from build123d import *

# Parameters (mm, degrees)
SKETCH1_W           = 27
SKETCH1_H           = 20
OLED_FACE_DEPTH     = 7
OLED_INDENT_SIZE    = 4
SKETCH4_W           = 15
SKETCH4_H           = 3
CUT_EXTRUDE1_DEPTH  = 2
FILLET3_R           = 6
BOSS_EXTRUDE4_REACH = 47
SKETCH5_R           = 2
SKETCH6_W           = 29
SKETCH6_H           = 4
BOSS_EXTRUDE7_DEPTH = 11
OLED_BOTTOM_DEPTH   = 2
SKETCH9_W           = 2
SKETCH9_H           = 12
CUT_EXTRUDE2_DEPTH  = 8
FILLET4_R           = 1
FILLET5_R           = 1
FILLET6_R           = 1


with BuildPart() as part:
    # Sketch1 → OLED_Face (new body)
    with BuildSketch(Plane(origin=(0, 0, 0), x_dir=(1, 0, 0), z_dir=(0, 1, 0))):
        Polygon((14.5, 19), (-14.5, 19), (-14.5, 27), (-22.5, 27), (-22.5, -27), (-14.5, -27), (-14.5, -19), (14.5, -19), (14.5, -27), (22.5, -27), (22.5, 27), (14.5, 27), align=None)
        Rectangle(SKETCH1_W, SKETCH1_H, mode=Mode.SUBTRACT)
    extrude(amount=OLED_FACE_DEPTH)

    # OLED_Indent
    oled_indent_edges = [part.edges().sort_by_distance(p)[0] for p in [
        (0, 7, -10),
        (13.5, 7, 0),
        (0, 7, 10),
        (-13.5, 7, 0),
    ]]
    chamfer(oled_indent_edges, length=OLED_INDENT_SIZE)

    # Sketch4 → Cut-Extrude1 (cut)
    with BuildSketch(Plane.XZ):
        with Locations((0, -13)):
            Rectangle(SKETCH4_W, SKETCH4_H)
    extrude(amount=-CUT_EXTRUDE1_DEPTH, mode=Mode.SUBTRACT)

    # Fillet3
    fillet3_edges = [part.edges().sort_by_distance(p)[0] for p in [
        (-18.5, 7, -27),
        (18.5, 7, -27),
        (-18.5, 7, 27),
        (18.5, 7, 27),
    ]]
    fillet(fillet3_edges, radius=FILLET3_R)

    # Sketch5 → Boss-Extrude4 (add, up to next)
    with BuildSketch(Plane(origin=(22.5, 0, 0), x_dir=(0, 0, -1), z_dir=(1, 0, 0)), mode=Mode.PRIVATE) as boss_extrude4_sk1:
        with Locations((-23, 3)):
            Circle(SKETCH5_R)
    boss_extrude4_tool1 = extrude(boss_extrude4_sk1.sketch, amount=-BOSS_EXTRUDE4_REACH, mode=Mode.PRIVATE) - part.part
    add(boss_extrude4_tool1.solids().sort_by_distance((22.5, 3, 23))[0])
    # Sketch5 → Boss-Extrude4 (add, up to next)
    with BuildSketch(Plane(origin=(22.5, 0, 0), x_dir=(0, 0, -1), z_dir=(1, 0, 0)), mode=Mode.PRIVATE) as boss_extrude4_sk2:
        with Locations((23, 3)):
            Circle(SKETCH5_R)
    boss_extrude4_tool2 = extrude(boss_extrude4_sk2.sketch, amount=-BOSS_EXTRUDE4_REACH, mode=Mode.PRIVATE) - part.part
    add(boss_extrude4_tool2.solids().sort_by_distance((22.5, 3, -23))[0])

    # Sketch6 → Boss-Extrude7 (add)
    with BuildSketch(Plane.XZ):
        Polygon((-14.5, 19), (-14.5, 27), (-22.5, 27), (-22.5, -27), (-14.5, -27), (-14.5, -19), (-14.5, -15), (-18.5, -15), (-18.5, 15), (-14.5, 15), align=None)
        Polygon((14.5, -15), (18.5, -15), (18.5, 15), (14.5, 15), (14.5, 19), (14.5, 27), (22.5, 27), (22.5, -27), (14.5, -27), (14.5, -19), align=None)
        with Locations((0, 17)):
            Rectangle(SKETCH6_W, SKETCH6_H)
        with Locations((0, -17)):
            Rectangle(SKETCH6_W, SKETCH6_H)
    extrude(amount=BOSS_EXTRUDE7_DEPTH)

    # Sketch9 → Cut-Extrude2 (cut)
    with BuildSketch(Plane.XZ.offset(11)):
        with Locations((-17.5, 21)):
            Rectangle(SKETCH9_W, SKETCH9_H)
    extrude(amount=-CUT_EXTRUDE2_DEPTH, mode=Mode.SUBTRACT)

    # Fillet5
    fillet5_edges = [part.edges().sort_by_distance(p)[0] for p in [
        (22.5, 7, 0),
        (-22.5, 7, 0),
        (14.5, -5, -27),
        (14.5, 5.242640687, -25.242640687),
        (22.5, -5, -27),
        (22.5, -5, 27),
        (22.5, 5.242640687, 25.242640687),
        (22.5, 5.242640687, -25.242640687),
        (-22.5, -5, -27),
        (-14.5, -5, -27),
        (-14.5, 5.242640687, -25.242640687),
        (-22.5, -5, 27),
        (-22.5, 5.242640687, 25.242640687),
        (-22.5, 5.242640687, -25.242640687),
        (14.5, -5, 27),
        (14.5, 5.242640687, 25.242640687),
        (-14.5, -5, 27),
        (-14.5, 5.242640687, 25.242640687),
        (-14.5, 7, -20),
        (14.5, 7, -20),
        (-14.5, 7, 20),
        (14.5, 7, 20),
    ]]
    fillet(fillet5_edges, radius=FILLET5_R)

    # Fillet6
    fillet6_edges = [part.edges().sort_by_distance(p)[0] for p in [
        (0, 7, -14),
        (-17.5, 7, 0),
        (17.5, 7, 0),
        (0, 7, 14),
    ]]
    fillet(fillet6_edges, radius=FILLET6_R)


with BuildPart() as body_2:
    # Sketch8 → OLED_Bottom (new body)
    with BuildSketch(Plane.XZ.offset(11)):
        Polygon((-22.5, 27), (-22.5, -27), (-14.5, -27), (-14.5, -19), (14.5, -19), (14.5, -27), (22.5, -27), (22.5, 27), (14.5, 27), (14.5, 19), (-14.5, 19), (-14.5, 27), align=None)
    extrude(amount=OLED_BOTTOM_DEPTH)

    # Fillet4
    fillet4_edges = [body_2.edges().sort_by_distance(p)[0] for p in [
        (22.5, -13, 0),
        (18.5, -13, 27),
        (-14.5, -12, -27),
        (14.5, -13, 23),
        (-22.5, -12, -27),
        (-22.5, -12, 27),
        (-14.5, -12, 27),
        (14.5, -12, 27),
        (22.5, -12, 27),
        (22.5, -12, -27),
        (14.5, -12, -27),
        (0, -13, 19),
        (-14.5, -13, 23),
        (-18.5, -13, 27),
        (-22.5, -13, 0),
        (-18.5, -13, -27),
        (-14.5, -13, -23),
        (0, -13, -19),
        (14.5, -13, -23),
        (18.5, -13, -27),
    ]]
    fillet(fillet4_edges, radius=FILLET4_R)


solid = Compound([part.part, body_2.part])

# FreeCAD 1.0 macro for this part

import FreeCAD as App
import Part
import Sketcher
from FreeCAD import Vector
Q = App.Units.Quantity


def edges_at(feature, points):
    """Names of the edges that pass closest to the given points."""
    edges = feature.Shape.Edges
    near = lambda p: min(range(len(edges)), key=lambda i: edges[i].distToShape(Part.Vertex(*p))[0])
    return sorted({f"Edge{near(p) + 1}" for p in points})

doc = App.newDocument("Part")
params = doc.addObject("Spreadsheet::Sheet", "Params")
for row, (alias, value) in enumerate([
    ("sketch1_width", "29 mm"),
    ("sketch1_width2", "8 mm"),
    ("sketch1_width3", "27 mm"),
    ("sketch1_height", "54 mm"),
    ("sketch1_height2", "20 mm"),
    ("pad1_length", "7 mm"),
    ("chamfer_size", "4 mm"),
    ("sketch2_width", "15 mm"),
    ("sketch2_height", "3 mm"),
    ("pocket1_length", "2 mm"),
    ("fillet_radius", "6 mm"),
    ("sketch3_diameter", "4 mm"),
    ("pad2_length", "37 mm"),
    ("sketch4_diameter", "4 mm"),
    ("pad3_length", "37 mm"),
    ("sketch5_width", "8 mm"),
    ("sketch5_width2", "29 mm"),
    ("sketch5_width3", "37 mm"),
    ("sketch5_height", "54 mm"),
    ("sketch5_height2", "30 mm"),
    ("pad4_length", "11 mm"),
    ("sketch6_width", "2 mm"),
    ("sketch6_height", "12 mm"),
    ("pocket2_length", "8 mm"),
    ("fillet2_radius", "1 mm"),
    ("fillet3_radius", "1 mm"),
    ("sketch7_width", "8 mm"),
    ("sketch7_width2", "29 mm"),
    ("sketch7_height", "54 mm"),
    ("pad5_length", "2 mm"),
    ("fillet4_radius", "1 mm"),
], start=1):
    params.set(f"A{row}", alias)
    params.set(f"B{row}", "=" + value)
    params.setAlias(f"B{row}", alias)

body = doc.addObject("PartDesign::Body", "Body")

# Sketch on XZ plane
sketch1 = doc.addObject("Sketcher::SketchObject", "Sketch")
body.addObject(sketch1)
sketch1.AttachmentSupport = (doc.XZ_Plane, [""])
sketch1.MapMode = "FlatFace"
sketch1.addGeometry([
    Part.LineSegment(Vector(14, -19, 0), Vector(-14, -19, 0)),  # 0
    Part.LineSegment(Vector(-14, -19, 0), Vector(-14, -27, 0)),  # 1
    Part.LineSegment(Vector(-14, -27, 0), Vector(-22, -27, 0)),  # 2
    Part.LineSegment(Vector(-22, -27, 0), Vector(-22, 27, 0)),  # 3
    Part.LineSegment(Vector(-22, 27, 0), Vector(-14, 27, 0)),  # 4
    Part.LineSegment(Vector(-14, 27, 0), Vector(-14, 19, 0)),  # 5
    Part.LineSegment(Vector(-14, 19, 0), Vector(14, 19, 0)),  # 6
    Part.LineSegment(Vector(14, 19, 0), Vector(14, 27, 0)),  # 7
    Part.LineSegment(Vector(14, 27, 0), Vector(22, 27, 0)),  # 8
    Part.LineSegment(Vector(22, 27, 0), Vector(22, -27, 0)),  # 9
    Part.LineSegment(Vector(22, -27, 0), Vector(14, -27, 0)),  # 10
    Part.LineSegment(Vector(14, -27, 0), Vector(14, -19, 0)),  # 11
    Part.LineSegment(Vector(14, 10, 0), Vector(-14, 10, 0)),  # 12
    Part.LineSegment(Vector(-14, 10, 0), Vector(-14, -10, 0)),  # 13
    Part.LineSegment(Vector(-14, -10, 0), Vector(14, -10, 0)),  # 14
    Part.LineSegment(Vector(14, -10, 0), Vector(14, 10, 0)),  # 15
], False)
sketch1.addConstraint([
    Sketcher.Constraint("Coincident", 0, 2, 1, 1),
    Sketcher.Constraint("Coincident", 1, 2, 2, 1),
    Sketcher.Constraint("Coincident", 2, 2, 3, 1),
    Sketcher.Constraint("Coincident", 3, 2, 4, 1),
    Sketcher.Constraint("Coincident", 4, 2, 5, 1),
    Sketcher.Constraint("Coincident", 5, 2, 6, 1),
    Sketcher.Constraint("Coincident", 6, 2, 7, 1),
    Sketcher.Constraint("Coincident", 7, 2, 8, 1),
    Sketcher.Constraint("Coincident", 8, 2, 9, 1),
    Sketcher.Constraint("Coincident", 9, 2, 10, 1),
    Sketcher.Constraint("Coincident", 10, 2, 11, 1),
    Sketcher.Constraint("Coincident", 11, 2, 0, 1),
    Sketcher.Constraint("Coincident", 12, 2, 13, 1),
    Sketcher.Constraint("Coincident", 13, 2, 14, 1),
    Sketcher.Constraint("Coincident", 14, 2, 15, 1),
    Sketcher.Constraint("Coincident", 15, 2, 12, 1),
    Sketcher.Constraint("Horizontal", 0),
    Sketcher.Constraint("Vertical", 1),
    Sketcher.Constraint("Horizontal", 2),
    Sketcher.Constraint("Vertical", 3),
    Sketcher.Constraint("Horizontal", 4),
    Sketcher.Constraint("Vertical", 5),
    Sketcher.Constraint("Horizontal", 6),
    Sketcher.Constraint("Vertical", 7),
    Sketcher.Constraint("Horizontal", 8),
    Sketcher.Constraint("Vertical", 9),
    Sketcher.Constraint("Horizontal", 10),
    Sketcher.Constraint("Vertical", 11),
    Sketcher.Constraint("Horizontal", 12),
    Sketcher.Constraint("Vertical", 13),
    Sketcher.Constraint("Horizontal", 14),
    Sketcher.Constraint("Vertical", 15),
    Sketcher.Constraint("Symmetric", 0, 2, 6, 2, -1, 1),
    Sketcher.Constraint("Symmetric", 2, 2, 8, 2, -1, 1),
    Sketcher.Constraint("Symmetric", 4, 2, 10, 2, -1, 1),
    Sketcher.Constraint("Symmetric", 12, 2, 14, 2, -1, 1),
    Sketcher.Constraint("Symmetric", 4, 2, 7, 2, -2),
    Sketcher.Constraint("Equal", 10, 1),
    Sketcher.Constraint("DistanceX", 0, 2, 0, 1, Q("29 mm")),
    Sketcher.Constraint("DistanceX", 2, 2, 2, 1, Q("8 mm")),
    Sketcher.Constraint("DistanceX", 12, 2, 12, 1, Q("27 mm")),
    Sketcher.Constraint("DistanceY", 3, 1, 3, 2, Q("54 mm")),
    Sketcher.Constraint("DistanceY", 13, 2, 13, 1, Q("20 mm")),
])
sketch1.setExpression("Constraints[38]", "Params.sketch1_width")
sketch1.setExpression("Constraints[39]", "Params.sketch1_width2")
sketch1.setExpression("Constraints[40]", "Params.sketch1_width3")
sketch1.setExpression("Constraints[41]", "Params.sketch1_height")
sketch1.setExpression("Constraints[42]", "Params.sketch1_height2")
pad1 = doc.addObject("PartDesign::Pad", "Pad")
body.addObject(pad1)
pad1.Profile = sketch1
pad1.setExpression("Length", "Params.pad1_length")
pad1.Reversed = True
doc.recompute()

chamfer = doc.addObject("PartDesign::Chamfer", "Chamfer")
body.addObject(chamfer)
chamfer.Base = (pad1, edges_at(pad1, [
    (0, 7, -10),
    (13.5, 7, 0),
    (0, 7, 10),
    (-13.5, 7, 0),
]))
chamfer.setExpression("Size", "Params.chamfer_size")

# Sketch on XZ plane
sketch2 = doc.addObject("Sketcher::SketchObject", "Sketch001")
body.addObject(sketch2)
sketch2.AttachmentSupport = (doc.XZ_Plane, [""])
sketch2.MapMode = "FlatFace"
sketch2.addGeometry([
    Part.LineSegment(Vector(-7.5, -11.5, 0), Vector(-7.5, -14.5, 0)),
    Part.LineSegment(Vector(-7.5, -14.5, 0), Vector(7.5, -14.5, 0)),
    Part.LineSegment(Vector(7.5, -14.5, 0), Vector(7.5, -11.5, 0)),
    Part.LineSegment(Vector(7.5, -11.5, 0), Vector(-7.5, -11.5, 0)),
], False)
sketch2.addConstraint([
    Sketcher.Constraint("Coincident", 0, 2, 1, 1),
    Sketcher.Constraint("Coincident", 1, 2, 2, 1),
    Sketcher.Constraint("Coincident", 2, 2, 3, 1),
    Sketcher.Constraint("Coincident", 3, 2, 0, 1),
    Sketcher.Constraint("Vertical", 0),
    Sketcher.Constraint("Horizontal", 1),
    Sketcher.Constraint("Vertical", 2),
    Sketcher.Constraint("Horizontal", 3),
    Sketcher.Constraint("DistanceX", 1, 1, 1, 2, Q("15 mm")),
    Sketcher.Constraint("DistanceY", 0, 2, 0, 1, Q("3 mm")),
    Sketcher.Constraint("DistanceX", 0, 2, -1, 1, Q("7.5 mm")),
    Sketcher.Constraint("DistanceY", 0, 2, -1, 1, Q("14.5 mm")),
])
sketch2.setExpression("Constraints[8]", "Params.sketch2_width")
sketch2.setExpression("Constraints[9]", "Params.sketch2_height")
pocket1 = doc.addObject("PartDesign::Pocket", "Pocket")
body.addObject(pocket1)
pocket1.Profile = sketch2
pocket1.setExpression("Length", "Params.pocket1_length")
doc.recompute()

fillet = doc.addObject("PartDesign::Fillet", "Fillet")
body.addObject(fillet)
fillet.Base = (pocket1, edges_at(pocket1, [
    (-18.5, 7, -27),
    (18.5, 7, -27),
    (-18.5, 7, 27),
    (18.5, 7, 27),
]))
fillet.setExpression("Radius", "Params.fillet_radius")

# Sketch on YZ plane
sketch3 = doc.addObject("Sketcher::SketchObject", "Sketch002")
body.addObject(sketch3)
sketch3.AttachmentSupport = (doc.YZ_Plane, [""])
sketch3.MapMode = "FlatFace"
sketch3.AttachmentOffset = App.Placement(Vector(0, 0, 22.5), App.Rotation())
sketch3.addGeometry(Part.Circle(Vector(3, 23, 0), Vector(0, 0, 1), 2), False)
sketch3.addConstraint([
    Sketcher.Constraint("Diameter", 0, Q("4 mm")),
    Sketcher.Constraint("DistanceX", -1, 1, 0, 3, Q("3 mm")),
    Sketcher.Constraint("DistanceY", -1, 1, 0, 3, Q("23 mm")),
])
sketch3.setExpression("Constraints[0]", "Params.sketch3_diameter")
pad2 = doc.addObject("PartDesign::Pad", "Pad001")
body.addObject(pad2)
pad2.Profile = sketch3
pad2.setExpression("Length", "Params.pad2_length")
pad2.Reversed = True

# Sketch on YZ plane
sketch4 = doc.addObject("Sketcher::SketchObject", "Sketch003")
body.addObject(sketch4)
sketch4.AttachmentSupport = (doc.YZ_Plane, [""])
sketch4.MapMode = "FlatFace"
sketch4.AttachmentOffset = App.Placement(Vector(0, 0, 22.5), App.Rotation())
sketch4.addGeometry(Part.Circle(Vector(3, -23, 0), Vector(0, 0, 1), 2), False)
sketch4.addConstraint([
    Sketcher.Constraint("Diameter", 0, Q("4 mm")),
    Sketcher.Constraint("DistanceX", -1, 1, 0, 3, Q("3 mm")),
    Sketcher.Constraint("DistanceY", 0, 3, -1, 1, Q("23 mm")),
])
sketch4.setExpression("Constraints[0]", "Params.sketch4_diameter")
pad3 = doc.addObject("PartDesign::Pad", "Pad002")
body.addObject(pad3)
pad3.Profile = sketch4
pad3.setExpression("Length", "Params.pad3_length")
pad3.Reversed = True

# Sketch on XZ plane
sketch5 = doc.addObject("Sketcher::SketchObject", "Sketch004")
body.addObject(sketch5)
sketch5.AttachmentSupport = (doc.XZ_Plane, [""])
sketch5.MapMode = "FlatFace"
sketch5.addGeometry([
    Part.LineSegment(Vector(-14, 27, 0), Vector(-22, 27, 0)),  # 0
    Part.LineSegment(Vector(-22, 27, 0), Vector(-22, -27, 0)),  # 1
    Part.LineSegment(Vector(-22, -27, 0), Vector(-14, -27, 0)),  # 2
    Part.LineSegment(Vector(-14, -27, 0), Vector(-14, -19, 0)),  # 3
    Part.LineSegment(Vector(-14, -19, 0), Vector(14, -19, 0)),  # 4
    Part.LineSegment(Vector(14, -19, 0), Vector(14, -27, 0)),  # 5
    Part.LineSegment(Vector(14, -27, 0), Vector(22, -27, 0)),  # 6
    Part.LineSegment(Vector(22, -27, 0), Vector(22, 27, 0)),  # 7
    Part.LineSegment(Vector(22, 27, 0), Vector(14, 27, 0)),  # 8
    Part.LineSegment(Vector(14, 27, 0), Vector(14, 19, 0)),  # 9
    Part.LineSegment(Vector(14, 19, 0), Vector(-14, 19, 0)),  # 10
    Part.LineSegment(Vector(-14, 19, 0), Vector(-14, 27, 0)),  # 11
    Part.LineSegment(Vector(-18, -15, 0), Vector(-18, 15, 0)),  # 12
    Part.LineSegment(Vector(-18, 15, 0), Vector(18, 15, 0)),  # 13
    Part.LineSegment(Vector(18, 15, 0), Vector(18, -15, 0)),  # 14
    Part.LineSegment(Vector(18, -15, 0), Vector(-18, -15, 0)),  # 15
], False)
sketch5.addConstraint([
    Sketcher.Constraint("Coincident", 0, 2, 1, 1),
    Sketcher.Constraint("Coincident", 1, 2, 2, 1),
    Sketcher.Constraint("Coincident", 2, 2, 3, 1),
    Sketcher.Constraint("Coincident", 3, 2, 4, 1),
    Sketcher.Constraint("Coincident", 4, 2, 5, 1),
    Sketcher.Constraint("Coincident", 5, 2, 6, 1),
    Sketcher.Constraint("Coincident", 6, 2, 7, 1),
    Sketcher.Constraint("Coincident", 7, 2, 8, 1),
    Sketcher.Constraint("Coincident", 8, 2, 9, 1),
    Sketcher.Constraint("Coincident", 9, 2, 10, 1),
    Sketcher.Constraint("Coincident", 10, 2, 11, 1),
    Sketcher.Constraint("Coincident", 11, 2, 0, 1),
    Sketcher.Constraint("Coincident", 12, 2, 13, 1),
    Sketcher.Constraint("Coincident", 13, 2, 14, 1),
    Sketcher.Constraint("Coincident", 14, 2, 15, 1),
    Sketcher.Constraint("Coincident", 15, 2, 12, 1),
    Sketcher.Constraint("Horizontal", 0),
    Sketcher.Constraint("Vertical", 1),
    Sketcher.Constraint("Horizontal", 2),
    Sketcher.Constraint("Vertical", 3),
    Sketcher.Constraint("Horizontal", 4),
    Sketcher.Constraint("Vertical", 5),
    Sketcher.Constraint("Horizontal", 6),
    Sketcher.Constraint("Vertical", 7),
    Sketcher.Constraint("Horizontal", 8),
    Sketcher.Constraint("Vertical", 9),
    Sketcher.Constraint("Horizontal", 10),
    Sketcher.Constraint("Vertical", 11),
    Sketcher.Constraint("Vertical", 12),
    Sketcher.Constraint("Horizontal", 13),
    Sketcher.Constraint("Vertical", 14),
    Sketcher.Constraint("Horizontal", 15),
    Sketcher.Constraint("Symmetric", 0, 2, 6, 2, -1, 1),
    Sketcher.Constraint("Symmetric", 2, 2, 8, 2, -1, 1),
    Sketcher.Constraint("Symmetric", 4, 2, 10, 2, -1, 1),
    Sketcher.Constraint("Symmetric", 12, 2, 14, 2, -1, 1),
    Sketcher.Constraint("Symmetric", 2, 2, 5, 2, -2),
    Sketcher.Constraint("Equal", 8, 3),
    Sketcher.Constraint("DistanceX", 0, 2, 0, 1, Q("8 mm")),
    Sketcher.Constraint("DistanceX", 4, 1, 4, 2, Q("29 mm")),
    Sketcher.Constraint("DistanceX", 13, 1, 13, 2, Q("37 mm")),
    Sketcher.Constraint("DistanceY", 1, 2, 1, 1, Q("54 mm")),
    Sketcher.Constraint("DistanceY", 12, 1, 12, 2, Q("30 mm")),
])
sketch5.setExpression("Constraints[38]", "Params.sketch5_width")
sketch5.setExpression("Constraints[39]", "Params.sketch5_width2")
sketch5.setExpression("Constraints[40]", "Params.sketch5_width3")
sketch5.setExpression("Constraints[41]", "Params.sketch5_height")
sketch5.setExpression("Constraints[42]", "Params.sketch5_height2")
pad4 = doc.addObject("PartDesign::Pad", "Pad003")
body.addObject(pad4)
pad4.Profile = sketch5
pad4.setExpression("Length", "Params.pad4_length")

# Sketch on XZ plane
sketch6 = doc.addObject("Sketcher::SketchObject", "Sketch005")
body.addObject(sketch6)
sketch6.AttachmentSupport = (doc.XZ_Plane, [""])
sketch6.MapMode = "FlatFace"
sketch6.AttachmentOffset = App.Placement(Vector(0, 0, 11), App.Rotation())
sketch6.addGeometry([
    Part.LineSegment(Vector(-18.5, 27, 0), Vector(-18.5, 15, 0)),
    Part.LineSegment(Vector(-18.5, 15, 0), Vector(-16.5, 15, 0)),
    Part.LineSegment(Vector(-16.5, 15, 0), Vector(-16.5, 27, 0)),
    Part.LineSegment(Vector(-16.5, 27, 0), Vector(-18.5, 27, 0)),
], False)
sketch6.addConstraint([
    Sketcher.Constraint("Coincident", 0, 2, 1, 1),
    Sketcher.Constraint("Coincident", 1, 2, 2, 1),
    Sketcher.Constraint("Coincident", 2, 2, 3, 1),
    Sketcher.Constraint("Coincident", 3, 2, 0, 1),
    Sketcher.Constraint("Vertical", 0),
    Sketcher.Constraint("Horizontal", 1),
    Sketcher.Constraint("Vertical", 2),
    Sketcher.Constraint("Horizontal", 3),
    Sketcher.Constraint("DistanceX", 1, 1, 1, 2, Q("2 mm")),
    Sketcher.Constraint("DistanceY", 0, 2, 0, 1, Q("12 mm")),
    Sketcher.Constraint("DistanceY", -1, 1, 0, 2, Q("15 mm")),
    Sketcher.Constraint("DistanceX", 0, 2, -1, 1, Q("18.5 mm")),
])
sketch6.setExpression("Constraints[8]", "Params.sketch6_width")
sketch6.setExpression("Constraints[9]", "Params.sketch6_height")
pocket2 = doc.addObject("PartDesign::Pocket", "Pocket001")
body.addObject(pocket2)
pocket2.Profile = sketch6
pocket2.setExpression("Length", "Params.pocket2_length")
doc.recompute()

fillet2 = doc.addObject("PartDesign::Fillet", "Fillet001")
body.addObject(fillet2)
fillet2.Base = (pocket2, edges_at(pocket2, [
    (22.5, 7, 0),
    (-22.5, 7, 0),
    (14.5, -5, -27),
    (14.5, 5.243, -25.243),
    (22.5, -5, -27),
    (22.5, -5, 27),
    (22.5, 5.243, 25.243),
    (22.5, 5.243, -25.243),
    (-22.5, -5, -27),
    (-14.5, -5, -27),
    (-14.5, 5.243, -25.243),
    (-22.5, -5, 27),
    (-22.5, 5.243, 25.243),
    (-22.5, 5.243, -25.243),
    (14.5, -5, 27),
    (14.5, 5.243, 25.243),
    (-14.5, -5, 27),
    (-14.5, 5.243, 25.243),
    (-14.5, 7, -20),
    (14.5, 7, -20),
    (-14.5, 7, 20),
    (14.5, 7, 20),
]))
fillet2.setExpression("Radius", "Params.fillet2_radius")
doc.recompute()

fillet3 = doc.addObject("PartDesign::Fillet", "Fillet002")
body.addObject(fillet3)
fillet3.Base = (fillet2, edges_at(fillet2, [
    (0, 7, -14),
    (-17.5, 7, 0),
    (17.5, 7, 0),
    (0, 7, 14),
]))
fillet3.setExpression("Radius", "Params.fillet3_radius")
body2 = doc.addObject("PartDesign::Body", "Body001")

# Sketch on XZ plane
sketch7 = doc.addObject("Sketcher::SketchObject", "Sketch006")
body2.addObject(sketch7)
sketch7.AttachmentSupport = (doc.getObject("XZ_Plane001"), [""])
sketch7.MapMode = "FlatFace"
sketch7.AttachmentOffset = App.Placement(Vector(0, 0, 11), App.Rotation())
sketch7.addGeometry([
    Part.LineSegment(Vector(-22, 27, 0), Vector(-22, -27, 0)),  # 0
    Part.LineSegment(Vector(-22, -27, 0), Vector(-14, -27, 0)),  # 1
    Part.LineSegment(Vector(-14, -27, 0), Vector(-14, -19, 0)),  # 2
    Part.LineSegment(Vector(-14, -19, 0), Vector(14, -19, 0)),  # 3
    Part.LineSegment(Vector(14, -19, 0), Vector(14, -27, 0)),  # 4
    Part.LineSegment(Vector(14, -27, 0), Vector(22, -27, 0)),  # 5
    Part.LineSegment(Vector(22, -27, 0), Vector(22, 27, 0)),  # 6
    Part.LineSegment(Vector(22, 27, 0), Vector(14, 27, 0)),  # 7
    Part.LineSegment(Vector(14, 27, 0), Vector(14, 19, 0)),  # 8
    Part.LineSegment(Vector(14, 19, 0), Vector(-14, 19, 0)),  # 9
    Part.LineSegment(Vector(-14, 19, 0), Vector(-14, 27, 0)),  # 10
    Part.LineSegment(Vector(-14, 27, 0), Vector(-22, 27, 0)),  # 11
], False)
sketch7.addConstraint([
    Sketcher.Constraint("Coincident", 0, 2, 1, 1),
    Sketcher.Constraint("Coincident", 1, 2, 2, 1),
    Sketcher.Constraint("Coincident", 2, 2, 3, 1),
    Sketcher.Constraint("Coincident", 3, 2, 4, 1),
    Sketcher.Constraint("Coincident", 4, 2, 5, 1),
    Sketcher.Constraint("Coincident", 5, 2, 6, 1),
    Sketcher.Constraint("Coincident", 6, 2, 7, 1),
    Sketcher.Constraint("Coincident", 7, 2, 8, 1),
    Sketcher.Constraint("Coincident", 8, 2, 9, 1),
    Sketcher.Constraint("Coincident", 9, 2, 10, 1),
    Sketcher.Constraint("Coincident", 10, 2, 11, 1),
    Sketcher.Constraint("Coincident", 11, 2, 0, 1),
    Sketcher.Constraint("Vertical", 0),
    Sketcher.Constraint("Horizontal", 1),
    Sketcher.Constraint("Vertical", 2),
    Sketcher.Constraint("Horizontal", 3),
    Sketcher.Constraint("Vertical", 4),
    Sketcher.Constraint("Horizontal", 5),
    Sketcher.Constraint("Vertical", 6),
    Sketcher.Constraint("Horizontal", 7),
    Sketcher.Constraint("Vertical", 8),
    Sketcher.Constraint("Horizontal", 9),
    Sketcher.Constraint("Vertical", 10),
    Sketcher.Constraint("Horizontal", 11),
    Sketcher.Constraint("Symmetric", 0, 2, 6, 2, -1, 1),
    Sketcher.Constraint("Symmetric", 2, 2, 8, 2, -1, 1),
    Sketcher.Constraint("Symmetric", 4, 2, 10, 2, -1, 1),
    Sketcher.Constraint("Symmetric", 1, 2, 4, 2, -2),
    Sketcher.Constraint("Equal", 11, 2),
    Sketcher.Constraint("DistanceX", 1, 1, 1, 2, Q("8 mm")),
    Sketcher.Constraint("DistanceX", 3, 1, 3, 2, Q("29 mm")),
    Sketcher.Constraint("DistanceY", 0, 2, 0, 1, Q("54 mm")),
])
sketch7.setExpression("Constraints[29]", "Params.sketch7_width")
sketch7.setExpression("Constraints[30]", "Params.sketch7_width2")
sketch7.setExpression("Constraints[31]", "Params.sketch7_height")
pad5 = doc.addObject("PartDesign::Pad", "Pad004")
body2.addObject(pad5)
pad5.Profile = sketch7
pad5.setExpression("Length", "Params.pad5_length")
doc.recompute()

fillet4 = doc.addObject("PartDesign::Fillet", "Fillet003")
body2.addObject(fillet4)
fillet4.Base = (pad5, edges_at(pad5, [
    (22.5, -13, 0),
    (18.5, -13, 27),
    (-14.5, -12, -27),
    (14.5, -13, 23),
    (-22.5, -12, -27),
    (-22.5, -12, 27),
    (-14.5, -12, 27),
    (14.5, -12, 27),
    (22.5, -12, 27),
    (22.5, -12, -27),
    (14.5, -12, -27),
    (0, -13, 19),
    (-14.5, -13, 23),
    (-18.5, -13, 27),
    (-22.5, -13, 0),
    (-18.5, -13, -27),
    (-14.5, -13, -23),
    (0, -13, -19),
    (14.5, -13, -23),
    (18.5, -13, -27),
]))
fillet4.setExpression("Radius", "Params.fillet4_radius")

doc.recompute()
